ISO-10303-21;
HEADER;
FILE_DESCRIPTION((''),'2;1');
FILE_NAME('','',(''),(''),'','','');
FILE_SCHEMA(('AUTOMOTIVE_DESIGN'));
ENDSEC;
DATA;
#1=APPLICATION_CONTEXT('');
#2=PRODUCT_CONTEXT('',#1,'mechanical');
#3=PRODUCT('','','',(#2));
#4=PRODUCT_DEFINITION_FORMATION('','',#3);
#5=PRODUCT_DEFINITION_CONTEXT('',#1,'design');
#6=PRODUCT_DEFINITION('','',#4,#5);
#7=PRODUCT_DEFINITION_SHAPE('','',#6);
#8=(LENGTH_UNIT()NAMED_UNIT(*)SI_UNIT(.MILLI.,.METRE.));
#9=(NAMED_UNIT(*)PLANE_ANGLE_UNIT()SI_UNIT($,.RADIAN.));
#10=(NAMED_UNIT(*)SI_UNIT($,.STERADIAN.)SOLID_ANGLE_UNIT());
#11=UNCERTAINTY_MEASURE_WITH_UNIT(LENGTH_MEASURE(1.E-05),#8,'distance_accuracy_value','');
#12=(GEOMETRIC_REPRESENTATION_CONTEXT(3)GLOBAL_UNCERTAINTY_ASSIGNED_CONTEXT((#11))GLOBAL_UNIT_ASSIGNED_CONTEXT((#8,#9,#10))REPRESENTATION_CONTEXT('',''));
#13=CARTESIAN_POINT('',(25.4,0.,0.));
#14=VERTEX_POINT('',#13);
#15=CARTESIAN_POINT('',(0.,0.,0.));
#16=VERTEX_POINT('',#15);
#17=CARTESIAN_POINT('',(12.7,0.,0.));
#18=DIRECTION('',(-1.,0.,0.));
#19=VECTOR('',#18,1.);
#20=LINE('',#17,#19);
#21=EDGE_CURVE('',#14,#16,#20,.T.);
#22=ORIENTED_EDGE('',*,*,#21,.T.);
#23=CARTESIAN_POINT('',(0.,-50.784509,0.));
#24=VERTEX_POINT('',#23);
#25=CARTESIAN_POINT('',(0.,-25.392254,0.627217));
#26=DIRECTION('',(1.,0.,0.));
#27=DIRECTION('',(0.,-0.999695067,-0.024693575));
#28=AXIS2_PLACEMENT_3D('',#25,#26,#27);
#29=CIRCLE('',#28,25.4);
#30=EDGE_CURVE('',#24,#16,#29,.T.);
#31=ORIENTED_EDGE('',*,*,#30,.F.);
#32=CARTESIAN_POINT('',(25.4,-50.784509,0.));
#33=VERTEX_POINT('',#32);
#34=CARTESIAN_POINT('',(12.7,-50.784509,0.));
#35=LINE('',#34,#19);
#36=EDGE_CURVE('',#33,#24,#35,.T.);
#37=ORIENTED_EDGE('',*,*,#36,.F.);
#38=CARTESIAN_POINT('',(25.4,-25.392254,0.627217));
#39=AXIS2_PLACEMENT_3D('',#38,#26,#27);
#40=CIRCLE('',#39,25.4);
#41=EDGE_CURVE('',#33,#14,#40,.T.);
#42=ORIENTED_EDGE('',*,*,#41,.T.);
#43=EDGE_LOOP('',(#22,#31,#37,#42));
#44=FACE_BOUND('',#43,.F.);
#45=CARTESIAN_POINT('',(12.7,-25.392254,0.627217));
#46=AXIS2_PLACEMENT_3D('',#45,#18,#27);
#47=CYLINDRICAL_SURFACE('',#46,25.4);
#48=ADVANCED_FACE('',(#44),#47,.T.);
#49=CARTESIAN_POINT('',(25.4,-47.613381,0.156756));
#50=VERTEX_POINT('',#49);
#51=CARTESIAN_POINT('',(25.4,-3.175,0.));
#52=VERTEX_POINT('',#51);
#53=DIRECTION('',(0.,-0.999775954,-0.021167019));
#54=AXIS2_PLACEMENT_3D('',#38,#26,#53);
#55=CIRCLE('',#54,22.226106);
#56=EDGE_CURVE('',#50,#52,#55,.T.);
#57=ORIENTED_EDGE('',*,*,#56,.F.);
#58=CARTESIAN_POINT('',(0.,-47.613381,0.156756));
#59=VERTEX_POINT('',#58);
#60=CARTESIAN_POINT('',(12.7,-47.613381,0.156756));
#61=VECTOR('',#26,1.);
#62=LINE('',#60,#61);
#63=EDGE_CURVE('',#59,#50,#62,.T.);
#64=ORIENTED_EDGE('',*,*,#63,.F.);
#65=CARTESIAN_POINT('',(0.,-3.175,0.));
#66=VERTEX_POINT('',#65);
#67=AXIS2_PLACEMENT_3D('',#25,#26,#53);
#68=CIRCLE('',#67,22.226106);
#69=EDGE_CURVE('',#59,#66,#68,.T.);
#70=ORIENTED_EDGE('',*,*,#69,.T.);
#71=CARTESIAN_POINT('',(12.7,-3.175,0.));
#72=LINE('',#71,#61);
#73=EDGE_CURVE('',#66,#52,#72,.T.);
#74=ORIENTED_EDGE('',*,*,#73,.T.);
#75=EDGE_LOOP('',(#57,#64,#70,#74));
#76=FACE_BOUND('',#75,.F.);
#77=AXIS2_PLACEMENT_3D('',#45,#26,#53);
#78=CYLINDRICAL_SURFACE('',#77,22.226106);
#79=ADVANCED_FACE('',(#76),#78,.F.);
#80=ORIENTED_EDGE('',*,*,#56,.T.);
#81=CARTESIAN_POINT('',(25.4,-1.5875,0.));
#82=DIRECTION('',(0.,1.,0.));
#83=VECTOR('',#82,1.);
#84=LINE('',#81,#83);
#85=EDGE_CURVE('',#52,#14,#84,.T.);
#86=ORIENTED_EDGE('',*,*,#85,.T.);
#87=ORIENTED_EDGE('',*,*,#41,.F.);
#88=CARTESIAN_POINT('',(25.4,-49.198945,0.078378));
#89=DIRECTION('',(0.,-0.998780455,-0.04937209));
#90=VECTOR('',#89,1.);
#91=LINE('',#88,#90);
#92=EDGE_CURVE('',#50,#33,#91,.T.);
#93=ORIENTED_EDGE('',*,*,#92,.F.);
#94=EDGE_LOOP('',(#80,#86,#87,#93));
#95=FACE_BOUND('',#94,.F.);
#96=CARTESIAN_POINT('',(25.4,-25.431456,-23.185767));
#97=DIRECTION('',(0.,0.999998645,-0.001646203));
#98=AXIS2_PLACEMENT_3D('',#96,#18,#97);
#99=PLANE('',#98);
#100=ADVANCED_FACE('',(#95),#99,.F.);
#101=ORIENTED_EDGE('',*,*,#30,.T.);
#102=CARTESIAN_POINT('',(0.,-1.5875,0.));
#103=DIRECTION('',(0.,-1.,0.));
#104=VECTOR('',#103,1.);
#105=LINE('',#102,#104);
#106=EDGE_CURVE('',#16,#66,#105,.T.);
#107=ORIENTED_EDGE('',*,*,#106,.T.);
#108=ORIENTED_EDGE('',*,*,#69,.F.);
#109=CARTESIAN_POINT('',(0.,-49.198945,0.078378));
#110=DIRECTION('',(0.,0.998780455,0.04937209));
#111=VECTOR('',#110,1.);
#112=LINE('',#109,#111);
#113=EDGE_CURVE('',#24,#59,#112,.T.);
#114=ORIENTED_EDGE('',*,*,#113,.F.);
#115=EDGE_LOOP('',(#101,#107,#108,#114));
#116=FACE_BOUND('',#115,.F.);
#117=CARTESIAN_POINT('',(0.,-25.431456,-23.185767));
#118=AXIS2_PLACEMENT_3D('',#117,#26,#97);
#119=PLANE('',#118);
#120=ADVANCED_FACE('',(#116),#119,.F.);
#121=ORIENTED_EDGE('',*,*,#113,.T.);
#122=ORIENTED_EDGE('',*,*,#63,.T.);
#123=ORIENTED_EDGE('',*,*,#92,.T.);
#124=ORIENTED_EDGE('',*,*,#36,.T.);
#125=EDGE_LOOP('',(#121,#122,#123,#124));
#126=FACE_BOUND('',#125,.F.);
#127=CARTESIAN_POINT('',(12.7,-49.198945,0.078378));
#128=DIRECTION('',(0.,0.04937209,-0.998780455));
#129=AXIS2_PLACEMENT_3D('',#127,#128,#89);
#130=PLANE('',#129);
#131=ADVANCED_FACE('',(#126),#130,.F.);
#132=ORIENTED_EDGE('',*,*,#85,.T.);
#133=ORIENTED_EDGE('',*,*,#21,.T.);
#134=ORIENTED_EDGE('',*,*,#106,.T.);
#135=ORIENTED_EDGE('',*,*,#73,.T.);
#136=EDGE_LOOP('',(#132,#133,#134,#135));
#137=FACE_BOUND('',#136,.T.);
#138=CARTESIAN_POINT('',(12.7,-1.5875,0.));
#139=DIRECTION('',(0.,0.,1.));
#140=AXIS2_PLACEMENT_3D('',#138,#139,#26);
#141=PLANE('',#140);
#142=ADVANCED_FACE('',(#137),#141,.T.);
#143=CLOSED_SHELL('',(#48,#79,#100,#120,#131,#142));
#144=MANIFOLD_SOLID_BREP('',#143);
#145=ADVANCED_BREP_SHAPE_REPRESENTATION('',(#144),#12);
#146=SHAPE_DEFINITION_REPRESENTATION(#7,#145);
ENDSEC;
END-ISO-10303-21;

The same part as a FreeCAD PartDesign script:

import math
import FreeCAD as App
import Part
import Sketcher

V = App.Vector
Q = App.Units.Quantity

doc = App.newDocument("Part")
params = doc.addObject("Spreadsheet::Sheet", "Params")
for row, (alias, value) in enumerate([
    ("sketch1_width", "1 in"),
    ("sketch1_height", "0.125 in"),
    ("sketch2_radius", "1 in"),
], start=1):
    params.set(f"A{row}", alias)
    params.set(f"B{row}", "=" + value)
    params.setAlias(f"B{row}", alias)

body = doc.addObject("PartDesign::Body", "Body")

# Sketch on XY plane
sketch1 = doc.addObject("Sketcher::SketchObject", "Sketch")
body.addObject(sketch1)
sketch1.AttachmentSupport = (doc.XY_Plane, [""])
sketch1.MapMode = "FlatFace"
sketch1.addGeometry(Part.LineSegment(V(0, 0, 0), V(0, -3.175, 0)), False)
sketch1.addGeometry(Part.LineSegment(V(0, -3.175, 0), V(25.4, -3.175, 0)), False)
sketch1.addGeometry(Part.LineSegment(V(25.4, -3.175, 0), V(25.4, 0, 0)), False)
sketch1.addGeometry(Part.LineSegment(V(25.4, 0, 0), V(0, 0, 0)), False)
sketch1.addConstraint(Sketcher.Constraint("Coincident", 0, 2, 1, 1))
sketch1.addConstraint(Sketcher.Constraint("Coincident", 1, 2, 2, 1))
sketch1.addConstraint(Sketcher.Constraint("Coincident", 2, 2, 3, 1))
sketch1.addConstraint(Sketcher.Constraint("Coincident", 3, 2, 0, 1))
sketch1.addConstraint(Sketcher.Constraint("Vertical", 0))
sketch1.addConstraint(Sketcher.Constraint("Horizontal", 1))
sketch1.addConstraint(Sketcher.Constraint("Vertical", 2))
sketch1.addConstraint(Sketcher.Constraint("Horizontal", 3))
sketch1.addConstraint(Sketcher.Constraint("Coincident", 3, 2, -1, 1))
sketch1.addConstraint(Sketcher.Constraint("DistanceX", 1, 1, 1, 2, Q("1 in")))
sketch1.addConstraint(Sketcher.Constraint("DistanceY", 0, 2, 0, 1, Q("0.125 in")))
sketch1.setExpression("Constraints[9]", "Params.sketch1_width")
sketch1.setExpression("Constraints[10]", "Params.sketch1_height")

# Sketch on YZ plane
sketch2 = doc.addObject("Sketcher::SketchObject", "Sketch001")
body.addObject(sketch2)
sketch2.AttachmentSupport = (doc.YZ_Plane, [""])
sketch2.MapMode = "FlatFace"
sketch2.addGeometry(Part.ArcOfCircle(Part.Circle(V(-25.392254, 0.627217, 0), V(0, 0, 1), 25.4), math.radians(-178.585019), math.radians(-1.414981)), False)
sketch2.addConstraint(Sketcher.Constraint("Coincident", 0, 2, -1, 1))
sketch2.addConstraint(Sketcher.Constraint("PointOnObject", 0, 1, -1))
sketch2.addConstraint(Sketcher.Constraint("Radius", 0, Q("1 in")))
sketch2.addConstraint(Sketcher.Constraint("DistanceX", 0, 1, -1, 1, Q("50.784509 mm")))
sketch2.setExpression("Constraints[2]", "Params.sketch2_radius")
doc.recompute()

additivepipe = doc.addObject("PartDesign::AdditivePipe", "AdditivePipe")
body.addObject(additivepipe)
additivepipe.Profile = sketch1
additivepipe.Spine = (sketch2, ["Edge1"])

doc.recompute()
